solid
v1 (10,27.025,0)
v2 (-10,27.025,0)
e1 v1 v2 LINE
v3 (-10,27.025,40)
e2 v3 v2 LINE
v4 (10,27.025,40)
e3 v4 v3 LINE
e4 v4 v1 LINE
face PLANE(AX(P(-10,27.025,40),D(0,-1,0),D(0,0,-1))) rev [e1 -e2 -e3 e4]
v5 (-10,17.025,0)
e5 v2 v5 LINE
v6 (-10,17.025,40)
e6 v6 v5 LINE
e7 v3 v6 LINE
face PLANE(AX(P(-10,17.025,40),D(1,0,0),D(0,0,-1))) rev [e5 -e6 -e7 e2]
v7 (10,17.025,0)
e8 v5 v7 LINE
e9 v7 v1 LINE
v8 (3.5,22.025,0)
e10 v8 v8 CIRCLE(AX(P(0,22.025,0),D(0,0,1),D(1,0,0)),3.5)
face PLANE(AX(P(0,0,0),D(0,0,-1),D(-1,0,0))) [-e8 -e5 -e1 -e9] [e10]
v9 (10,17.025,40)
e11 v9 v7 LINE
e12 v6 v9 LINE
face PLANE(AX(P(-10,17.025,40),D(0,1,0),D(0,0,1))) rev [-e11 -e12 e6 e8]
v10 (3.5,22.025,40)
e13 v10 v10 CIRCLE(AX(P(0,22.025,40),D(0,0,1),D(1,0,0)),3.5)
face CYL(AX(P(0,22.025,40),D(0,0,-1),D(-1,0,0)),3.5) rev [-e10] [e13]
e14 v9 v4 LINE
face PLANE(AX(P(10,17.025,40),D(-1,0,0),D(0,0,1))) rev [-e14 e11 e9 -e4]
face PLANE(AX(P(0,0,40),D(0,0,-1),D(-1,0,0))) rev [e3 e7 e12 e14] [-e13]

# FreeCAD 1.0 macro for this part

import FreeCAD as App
import Part
import Sketcher
Q = App.Units.Quantity


def add_polygon(sketch, points):
    """Adds a closed chain of lines whose ends are joined by coincident constraints."""
    first, n = sketch.GeometryCount, len(points)
    for a, b in zip(points, points[1:] + points[:1]):
        sketch.addGeometry(Part.LineSegment(App.Vector(*a, 0), App.Vector(*b, 0)), False)
    for i in range(n):
        sketch.addConstraint(Sketcher.Constraint("Coincident", first + i, 2, first + (i + 1) % n, 1))

doc = App.newDocument("Part")
params = doc.addObject("Spreadsheet::Sheet", "Params")
for row, (alias, value) in enumerate([
    ("sketch1_diameter", "7 mm"),
    ("sketch1_width", "20 mm"),
    ("sketch1_height", "10 mm"),
    ("pad1_length", "40 mm"),
], start=1):
    params.set(f"A{row}", alias)
    params.set(f"B{row}", "=" + value)
    params.setAlias(f"B{row}", alias)

body = doc.addObject("PartDesign::Body", "Body")

sketch1 = body.newObject("Sketcher::SketchObject", "Sketch")
sketch1.AttachmentSupport = (doc.getObject("XY_Plane"), [""])
sketch1.MapMode = "FlatFace"
add_polygon(sketch1, [(-10, 27), (-10, 17), (10, 17), (10, 27)])
sketch1.addGeometry(Part.Circle(App.Vector(0, 22, 0), App.Vector(0, 0, 1), 3.5), False)
sketch1.addConstraint([
    Sketcher.Constraint("Vertical", 0),
    Sketcher.Constraint("Horizontal", 1),
    Sketcher.Constraint("Vertical", 2),
    Sketcher.Constraint("Horizontal", 3),
    Sketcher.Constraint("PointOnObject", 4, 3, -2),
    Sketcher.Constraint("Diameter", 4, Q("7 mm")),
    Sketcher.Constraint("DistanceX", 1, 1, 1, 2, Q("20 mm")),
    Sketcher.Constraint("DistanceY", 0, 2, 0, 1, Q("10 mm")),
    Sketcher.Constraint("DistanceX", 0, 2, -1, 1, Q("10 mm")),
    Sketcher.Constraint("DistanceY", 0, 2, 4, 3, Q("5 mm")),
    Sketcher.Constraint("DistanceY", -1, 1, 4, 3, Q("22.025 mm")),
])
sketch1.setExpression("Constraints[9]", "Params.sketch1_diameter")
sketch1.setExpression("Constraints[10]", "Params.sketch1_width")
sketch1.setExpression("Constraints[11]", "Params.sketch1_height")
pad1 = body.newObject("PartDesign::Pad", "Pad")
pad1.Profile = sketch1
pad1.setExpression("Length", "Params.pad1_length")

doc.recompute()
